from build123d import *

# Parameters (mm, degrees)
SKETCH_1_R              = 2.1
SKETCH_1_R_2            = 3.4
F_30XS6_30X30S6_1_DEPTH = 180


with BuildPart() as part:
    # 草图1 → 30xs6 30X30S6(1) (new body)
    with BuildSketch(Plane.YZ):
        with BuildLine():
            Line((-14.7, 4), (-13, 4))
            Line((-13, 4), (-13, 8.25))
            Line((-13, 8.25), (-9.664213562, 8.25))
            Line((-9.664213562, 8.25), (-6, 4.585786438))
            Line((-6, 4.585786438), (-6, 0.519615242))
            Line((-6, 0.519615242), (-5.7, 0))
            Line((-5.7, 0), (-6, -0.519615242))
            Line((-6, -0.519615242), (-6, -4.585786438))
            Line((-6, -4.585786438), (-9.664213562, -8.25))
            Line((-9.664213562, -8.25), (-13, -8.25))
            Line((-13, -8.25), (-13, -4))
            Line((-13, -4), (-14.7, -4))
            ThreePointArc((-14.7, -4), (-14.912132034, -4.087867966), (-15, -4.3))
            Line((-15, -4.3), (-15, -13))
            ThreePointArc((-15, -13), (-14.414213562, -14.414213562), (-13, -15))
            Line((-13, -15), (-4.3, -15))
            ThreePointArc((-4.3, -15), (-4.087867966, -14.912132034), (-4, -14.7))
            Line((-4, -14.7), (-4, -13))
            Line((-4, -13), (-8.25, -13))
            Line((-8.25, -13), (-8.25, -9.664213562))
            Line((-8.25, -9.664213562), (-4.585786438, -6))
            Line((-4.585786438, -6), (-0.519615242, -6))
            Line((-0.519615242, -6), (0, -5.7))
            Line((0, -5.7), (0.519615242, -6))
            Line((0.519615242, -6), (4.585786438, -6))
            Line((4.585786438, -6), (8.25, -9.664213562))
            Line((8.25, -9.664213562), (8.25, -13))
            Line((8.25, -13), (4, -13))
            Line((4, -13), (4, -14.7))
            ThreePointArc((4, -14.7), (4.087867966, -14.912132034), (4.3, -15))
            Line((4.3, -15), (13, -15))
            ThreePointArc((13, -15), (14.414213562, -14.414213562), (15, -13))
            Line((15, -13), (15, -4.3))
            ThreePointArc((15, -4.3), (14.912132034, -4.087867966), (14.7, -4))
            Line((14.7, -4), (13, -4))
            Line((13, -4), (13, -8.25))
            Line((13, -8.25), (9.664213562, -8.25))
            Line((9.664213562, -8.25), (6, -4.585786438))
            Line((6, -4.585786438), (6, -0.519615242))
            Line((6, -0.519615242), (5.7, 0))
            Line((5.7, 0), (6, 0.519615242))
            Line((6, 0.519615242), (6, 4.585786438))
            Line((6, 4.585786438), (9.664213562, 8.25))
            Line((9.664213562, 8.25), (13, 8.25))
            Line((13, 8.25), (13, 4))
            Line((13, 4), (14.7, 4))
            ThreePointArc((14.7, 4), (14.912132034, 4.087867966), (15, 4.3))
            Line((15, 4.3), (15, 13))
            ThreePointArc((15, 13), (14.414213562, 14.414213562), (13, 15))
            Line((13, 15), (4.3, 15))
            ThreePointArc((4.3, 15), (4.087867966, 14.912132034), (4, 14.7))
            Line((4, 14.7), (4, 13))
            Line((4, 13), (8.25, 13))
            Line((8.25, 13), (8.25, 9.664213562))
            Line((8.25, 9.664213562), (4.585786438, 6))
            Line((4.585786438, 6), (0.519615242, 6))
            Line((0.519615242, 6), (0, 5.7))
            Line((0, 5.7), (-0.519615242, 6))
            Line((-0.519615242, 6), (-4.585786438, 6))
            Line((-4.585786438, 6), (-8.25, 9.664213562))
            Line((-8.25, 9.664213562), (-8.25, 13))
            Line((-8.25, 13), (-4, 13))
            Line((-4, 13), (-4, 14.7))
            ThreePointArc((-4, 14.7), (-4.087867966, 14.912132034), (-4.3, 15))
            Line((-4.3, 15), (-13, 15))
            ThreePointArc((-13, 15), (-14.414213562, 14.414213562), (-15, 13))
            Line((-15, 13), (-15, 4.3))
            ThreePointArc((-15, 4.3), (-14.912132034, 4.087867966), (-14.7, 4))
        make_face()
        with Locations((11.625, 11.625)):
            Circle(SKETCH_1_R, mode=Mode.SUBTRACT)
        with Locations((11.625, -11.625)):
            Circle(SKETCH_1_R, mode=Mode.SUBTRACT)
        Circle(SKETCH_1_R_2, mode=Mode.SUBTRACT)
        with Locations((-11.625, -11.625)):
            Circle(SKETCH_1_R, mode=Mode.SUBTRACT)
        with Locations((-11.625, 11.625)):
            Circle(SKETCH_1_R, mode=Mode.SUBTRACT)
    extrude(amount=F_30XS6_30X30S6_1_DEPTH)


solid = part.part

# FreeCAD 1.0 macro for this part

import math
import FreeCAD as App
import Part
import Sketcher

V = App.Vector
Q = App.Units.Quantity

doc = App.newDocument("Part")
body = doc.addObject("PartDesign::Body", "Body")

# Sketch on YZ plane
sketch1 = body.newObject("Sketcher::SketchObject", "Sketch")
sketch1.AttachmentSupport = (doc.getObject("YZ_Plane"), [""])
sketch1.MapMode = "FlatFace"
sketch1.addGeometry(Part.LineSegment(V(-14.7, 4, 0), V(-13, 4, 0)), False)
sketch1.addGeometry(Part.LineSegment(V(-13, 4, 0), V(-13, 8.25, 0)), False)
sketch1.addGeometry(Part.LineSegment(V(-13, 8.25, 0), V(-9.664214, 8.25, 0)), False)
sketch1.addGeometry(Part.LineSegment(V(-9.664214, 8.25, 0), V(-6, 4.585786, 0)), False)
sketch1.addGeometry(Part.LineSegment(V(-6, 4.585786, 0), V(-6, 0.519615, 0)), False)
sketch1.addGeometry(Part.LineSegment(V(-6, 0.519615, 0), V(-5.7, 0, 0)), False)
sketch1.addGeometry(Part.LineSegment(V(-5.7, 0, 0), V(-6, -0.519615, 0)), False)
sketch1.addGeometry(Part.LineSegment(V(-6, -0.519615, 0), V(-6, -4.585786, 0)), False)
sketch1.addGeometry(Part.LineSegment(V(-6, -4.585786, 0), V(-9.664214, -8.25, 0)), False)
sketch1.addGeometry(Part.LineSegment(V(-9.664214, -8.25, 0), V(-13, -8.25, 0)), False)
sketch1.addGeometry(Part.LineSegment(V(-13, -8.25, 0), V(-13, -4, 0)), False)
sketch1.addGeometry(Part.LineSegment(V(-13, -4, 0), V(-14.7, -4, 0)), False)
sketch1.addGeometry(Part.ArcOfCircle(Part.Circle(V(-14.7, -4.3, 0), V(0, 0, 1), 0.3), math.radians(90), math.radians(180)), False)
sketch1.addGeometry(Part.LineSegment(V(-15, -4.3, 0), V(-15, -13, 0)), False)
sketch1.addGeometry(Part.ArcOfCircle(Part.Circle(V(-13, -13, 0), V(0, 0, 1), 2), math.radians(-180), math.radians(-90)), False)
sketch1.addGeometry(Part.LineSegment(V(-13, -15, 0), V(-4.3, -15, 0)), False)
sketch1.addGeometry(Part.ArcOfCircle(Part.Circle(V(-4.3, -14.7, 0), V(0, 0, 1), 0.3), math.radians(-90), math.radians(0)), False)
sketch1.addGeometry(Part.LineSegment(V(-4, -14.7, 0), V(-4, -13, 0)), False)
sketch1.addGeometry(Part.LineSegment(V(-4, -13, 0), V(-8.25, -13, 0)), False)
sketch1.addGeometry(Part.LineSegment(V(-8.25, -13, 0), V(-8.25, -9.664214, 0)), False)
sketch1.addGeometry(Part.LineSegment(V(-8.25, -9.664214, 0), V(-4.585786, -6, 0)), False)
sketch1.addGeometry(Part.LineSegment(V(-4.585786, -6, 0), V(-0.519615, -6, 0)), False)
sketch1.addGeometry(Part.LineSegment(V(-0.519615, -6, 0), V(0, -5.7, 0)), False)
sketch1.addGeometry(Part.LineSegment(V(0, -5.7, 0), V(0.519615, -6, 0)), False)
sketch1.addGeometry(Part.LineSegment(V(0.519615, -6, 0), V(4.585786, -6, 0)), False)
sketch1.addGeometry(Part.LineSegment(V(4.585786, -6, 0), V(8.25, -9.664214, 0)), False)
sketch1.addGeometry(Part.LineSegment(V(8.25, -9.664214, 0), V(8.25, -13, 0)), False)
sketch1.addGeometry(Part.LineSegment(V(8.25, -13, 0), V(4, -13, 0)), False)
sketch1.addGeometry(Part.LineSegment(V(4, -13, 0), V(4, -14.7, 0)), False)
sketch1.addGeometry(Part.ArcOfCircle(Part.Circle(V(4.3, -14.7, 0), V(0, 0, 1), 0.3), math.radians(-180), math.radians(-90)), False)
sketch1.addGeometry(Part.LineSegment(V(4.3, -15, 0), V(13, -15, 0)), False)
sketch1.addGeometry(Part.ArcOfCircle(Part.Circle(V(13, -13, 0), V(0, 0, 1), 2), math.radians(-90), math.radians(0)), False)
sketch1.addGeometry(Part.LineSegment(V(15, -13, 0), V(15, -4.3, 0)), False)
sketch1.addGeometry(Part.ArcOfCircle(Part.Circle(V(14.7, -4.3, 0), V(0, 0, 1), 0.3), math.radians(0), math.radians(90)), False)
sketch1.addGeometry(Part.LineSegment(V(14.7, -4, 0), V(13, -4, 0)), False)
sketch1.addGeometry(Part.LineSegment(V(13, -4, 0), V(13, -8.25, 0)), False)
sketch1.addGeometry(Part.LineSegment(V(13, -8.25, 0), V(9.664214, -8.25, 0)), False)
sketch1.addGeometry(Part.LineSegment(V(9.664214, -8.25, 0), V(6, -4.585786, 0)), False)
sketch1.addGeometry(Part.LineSegment(V(6, -4.585786, 0), V(6, -0.519615, 0)), False)
sketch1.addGeometry(Part.LineSegment(V(6, -0.519615, 0), V(5.7, 0, 0)), False)
sketch1.addGeometry(Part.LineSegment(V(5.7, 0, 0), V(6, 0.519615, 0)), False)
sketch1.addGeometry(Part.LineSegment(V(6, 0.519615, 0), V(6, 4.585786, 0)), False)
sketch1.addGeometry(Part.LineSegment(V(6, 4.585786, 0), V(9.664214, 8.25, 0)), False)
sketch1.addGeometry(Part.LineSegment(V(9.664214, 8.25, 0), V(13, 8.25, 0)), False)
sketch1.addGeometry(Part.LineSegment(V(13, 8.25, 0), V(13, 4, 0)), False)
sketch1.addGeometry(Part.LineSegment(V(13, 4, 0), V(14.7, 4, 0)), False)
sketch1.addGeometry(Part.ArcOfCircle(Part.Circle(V(14.7, 4.3, 0), V(0, 0, 1), 0.3), math.radians(-90), math.radians(0)), False)
sketch1.addGeometry(Part.LineSegment(V(15, 4.3, 0), V(15, 13, 0)), False)
sketch1.addGeometry(Part.ArcOfCircle(Part.Circle(V(13, 13, 0), V(0, 0, 1), 2), math.radians(0), math.radians(90)), False)
sketch1.addGeometry(Part.LineSegment(V(13, 15, 0), V(4.3, 15, 0)), False)
sketch1.addGeometry(Part.ArcOfCircle(Part.Circle(V(4.3, 14.7, 0), V(0, 0, 1), 0.3), math.radians(90), math.radians(180)), False)
sketch1.addGeometry(Part.LineSegment(V(4, 14.7, 0), V(4, 13, 0)), False)
sketch1.addGeometry(Part.LineSegment(V(4, 13, 0), V(8.25, 13, 0)), False)
sketch1.addGeometry(Part.LineSegment(V(8.25, 13, 0), V(8.25, 9.664214, 0)), False)
sketch1.addGeometry(Part.LineSegment(V(8.25, 9.664214, 0), V(4.585786, 6, 0)), False)
sketch1.addGeometry(Part.LineSegment(V(4.585786, 6, 0), V(0.519615, 6, 0)), False)
sketch1.addGeometry(Part.LineSegment(V(0.519615, 6, 0), V(0, 5.7, 0)), False)
sketch1.addGeometry(Part.LineSegment(V(0, 5.7, 0), V(-0.519615, 6, 0)), False)
sketch1.addGeometry(Part.LineSegment(V(-0.519615, 6, 0), V(-4.585786, 6, 0)), False)
sketch1.addGeometry(Part.LineSegment(V(-4.585786, 6, 0), V(-8.25, 9.664214, 0)), False)
sketch1.addGeometry(Part.LineSegment(V(-8.25, 9.664214, 0), V(-8.25, 13, 0)), False)
sketch1.addGeometry(Part.LineSegment(V(-8.25, 13, 0), V(-4, 13, 0)), False)
sketch1.addGeometry(Part.LineSegment(V(-4, 13, 0), V(-4, 14.7, 0)), False)
sketch1.addGeometry(Part.ArcOfCircle(Part.Circle(V(-4.3, 14.7, 0), V(0, 0, 1), 0.3), math.radians(0), math.radians(90)), False)
sketch1.addGeometry(Part.LineSegment(V(-4.3, 15, 0), V(-13, 15, 0)), False)
sketch1.addGeometry(Part.ArcOfCircle(Part.Circle(V(-13, 13, 0), V(0, 0, 1), 2), math.radians(90), math.radians(180)), False)
sketch1.addGeometry(Part.LineSegment(V(-15, 13, 0), V(-15, 4.3, 0)), False)
sketch1.addGeometry(Part.ArcOfCircle(Part.Circle(V(-14.7, 4.3, 0), V(0, 0, 1), 0.3), math.radians(-180), math.radians(-90)), False)
sketch1.addGeometry(Part.Circle(V(-11.625, -11.625, 0), V(0, 0, 1), 2.1), False)
sketch1.addGeometry(Part.Circle(V(11.625, -11.625, 0), V(0, 0, 1), 2.1), False)
sketch1.addGeometry(Part.Circle(V(-11.625, 11.625, 0), V(0, 0, 1), 2.1), False)
sketch1.addGeometry(Part.Circle(V(0, 0, 0), V(0, 0, 1), 3.4), False)
sketch1.addGeometry(Part.Circle(V(11.625, 11.625, 0), V(0, 0, 1), 2.1), False)
sketch1.addConstraint(Sketcher.Constraint("Coincident", 0, 2, 1, 1))
sketch1.addConstraint(Sketcher.Constraint("Coincident", 1, 2, 2, 1))
sketch1.addConstraint(Sketcher.Constraint("Coincident", 2, 2, 3, 1))
sketch1.addConstraint(Sketcher.Constraint("Coincident", 3, 2, 4, 1))
sketch1.addConstraint(Sketcher.Constraint("Coincident", 4, 2, 5, 1))
sketch1.addConstraint(Sketcher.Constraint("Coincident", 5, 2, 6, 1))
sketch1.addConstraint(Sketcher.Constraint("Coincident", 6, 2, 7, 1))
sketch1.addConstraint(Sketcher.Constraint("Coincident", 7, 2, 8, 1))
sketch1.addConstraint(Sketcher.Constraint("Coincident", 8, 2, 9, 1))
sketch1.addConstraint(Sketcher.Constraint("Coincident", 9, 2, 10, 1))
sketch1.addConstraint(Sketcher.Constraint("Coincident", 10, 2, 11, 1))
sketch1.addConstraint(Sketcher.Constraint("Tangent", 11, 2, 12, 1))
sketch1.addConstraint(Sketcher.Constraint("Tangent", 12, 2, 13, 1))
sketch1.addConstraint(Sketcher.Constraint("Tangent", 13, 2, 14, 1))
sketch1.addConstraint(Sketcher.Constraint("Tangent", 14, 2, 15, 1))
sketch1.addConstraint(Sketcher.Constraint("Tangent", 15, 2, 16, 1))
sketch1.addConstraint(Sketcher.Constraint("Tangent", 16, 2, 17, 1))
sketch1.addConstraint(Sketcher.Constraint("Coincident", 17, 2, 18, 1))
sketch1.addConstraint(Sketcher.Constraint("Coincident", 18, 2, 19, 1))
sketch1.addConstraint(Sketcher.Constraint("Coincident", 19, 2, 20, 1))
sketch1.addConstraint(Sketcher.Constraint("Coincident", 20, 2, 21, 1))
sketch1.addConstraint(Sketcher.Constraint("Coincident", 21, 2, 22, 1))
sketch1.addConstraint(Sketcher.Constraint("Coincident", 22, 2, 23, 1))
sketch1.addConstraint(Sketcher.Constraint("Coincident", 23, 2, 24, 1))
sketch1.addConstraint(Sketcher.Constraint("Coincident", 24, 2, 25, 1))
sketch1.addConstraint(Sketcher.Constraint("Coincident", 25, 2, 26, 1))
sketch1.addConstraint(Sketcher.Constraint("Coincident", 26, 2, 27, 1))
sketch1.addConstraint(Sketcher.Constraint("Coincident", 27, 2, 28, 1))
sketch1.addConstraint(Sketcher.Constraint("Tangent", 28, 2, 29, 1))
sketch1.addConstraint(Sketcher.Constraint("Tangent", 29, 2, 30, 1))
sketch1.addConstraint(Sketcher.Constraint("Tangent", 30, 2, 31, 1))
sketch1.addConstraint(Sketcher.Constraint("Tangent", 31, 2, 32, 1))
sketch1.addConstraint(Sketcher.Constraint("Tangent", 32, 2, 33, 1))
sketch1.addConstraint(Sketcher.Constraint("Tangent", 33, 2, 34, 1))
sketch1.addConstraint(Sketcher.Constraint("Coincident", 34, 2, 35, 1))
sketch1.addConstraint(Sketcher.Constraint("Coincident", 35, 2, 36, 1))
sketch1.addConstraint(Sketcher.Constraint("Coincident", 36, 2, 37, 1))
sketch1.addConstraint(Sketcher.Constraint("Coincident", 37, 2, 38, 1))
sketch1.addConstraint(Sketcher.Constraint("Coincident", 38, 2, 39, 1))
sketch1.addConstraint(Sketcher.Constraint("Coincident", 39, 2, 40, 1))
sketch1.addConstraint(Sketcher.Constraint("Coincident", 40, 2, 41, 1))
sketch1.addConstraint(Sketcher.Constraint("Coincident", 41, 2, 42, 1))
sketch1.addConstraint(Sketcher.Constraint("Coincident", 42, 2, 43, 1))
sketch1.addConstraint(Sketcher.Constraint("Coincident", 43, 2, 44, 1))
sketch1.addConstraint(Sketcher.Constraint("Coincident", 44, 2, 45, 1))
sketch1.addConstraint(Sketcher.Constraint("Tangent", 45, 2, 46, 1))
sketch1.addConstraint(Sketcher.Constraint("Tangent", 46, 2, 47, 1))
sketch1.addConstraint(Sketcher.Constraint("Tangent", 47, 2, 48, 1))
sketch1.addConstraint(Sketcher.Constraint("Tangent", 48, 2, 49, 1))
sketch1.addConstraint(Sketcher.Constraint("Tangent", 49, 2, 50, 1))
sketch1.addConstraint(Sketcher.Constraint("Tangent", 50, 2, 51, 1))
sketch1.addConstraint(Sketcher.Constraint("Coincident", 51, 2, 52, 1))
sketch1.addConstraint(Sketcher.Constraint("Coincident", 52, 2, 53, 1))
sketch1.addConstraint(Sketcher.Constraint("Coincident", 53, 2, 54, 1))
sketch1.addConstraint(Sketcher.Constraint("Coincident", 54, 2, 55, 1))
sketch1.addConstraint(Sketcher.Constraint("Coincident", 55, 2, 56, 1))
sketch1.addConstraint(Sketcher.Constraint("Coincident", 56, 2, 57, 1))
sketch1.addConstraint(Sketcher.Constraint("Coincident", 57, 2, 58, 1))
sketch1.addConstraint(Sketcher.Constraint("Coincident", 58, 2, 59, 1))
sketch1.addConstraint(Sketcher.Constraint("Coincident", 59, 2, 60, 1))
sketch1.addConstraint(Sketcher.Constraint("Coincident", 60, 2, 61, 1))
sketch1.addConstraint(Sketcher.Constraint("Coincident", 61, 2, 62, 1))
sketch1.addConstraint(Sketcher.Constraint("Tangent", 62, 2, 63, 1))
sketch1.addConstraint(Sketcher.Constraint("Tangent", 63, 2, 64, 1))
sketch1.addConstraint(Sketcher.Constraint("Tangent", 64, 2, 65, 1))
sketch1.addConstraint(Sketcher.Constraint("Tangent", 65, 2, 66, 1))
sketch1.addConstraint(Sketcher.Constraint("Tangent", 66, 2, 67, 1))
sketch1.addConstraint(Sketcher.Constraint("Tangent", 67, 2, 0, 1))
sketch1.addConstraint(Sketcher.Constraint("Horizontal", 0))
sketch1.addConstraint(Sketcher.Constraint("Vertical", 1))
sketch1.addConstraint(Sketcher.Constraint("Horizontal", 2))
sketch1.addConstraint(Sketcher.Constraint("Vertical", 4))
sketch1.addConstraint(Sketcher.Constraint("Vertical", 7))
sketch1.addConstraint(Sketcher.Constraint("Horizontal", 9))
sketch1.addConstraint(Sketcher.Constraint("Vertical", 10))
sketch1.addConstraint(Sketcher.Constraint("Horizontal", 11))
sketch1.addConstraint(Sketcher.Constraint("Vertical", 13))
sketch1.addConstraint(Sketcher.Constraint("Horizontal", 15))
sketch1.addConstraint(Sketcher.Constraint("Vertical", 17))
sketch1.addConstraint(Sketcher.Constraint("Horizontal", 18))
sketch1.addConstraint(Sketcher.Constraint("Vertical", 19))
sketch1.addConstraint(Sketcher.Constraint("Horizontal", 21))
sketch1.addConstraint(Sketcher.Constraint("Horizontal", 24))
sketch1.addConstraint(Sketcher.Constraint("Vertical", 26))
sketch1.addConstraint(Sketcher.Constraint("Horizontal", 27))
sketch1.addConstraint(Sketcher.Constraint("Vertical", 28))
sketch1.addConstraint(Sketcher.Constraint("Horizontal", 30))
sketch1.addConstraint(Sketcher.Constraint("Vertical", 32))
sketch1.addConstraint(Sketcher.Constraint("Horizontal", 34))
sketch1.addConstraint(Sketcher.Constraint("Vertical", 35))
sketch1.addConstraint(Sketcher.Constraint("Horizontal", 36))
sketch1.addConstraint(Sketcher.Constraint("Vertical", 38))
sketch1.addConstraint(Sketcher.Constraint("Vertical", 41))
sketch1.addConstraint(Sketcher.Constraint("Horizontal", 43))
sketch1.addConstraint(Sketcher.Constraint("Vertical", 44))
sketch1.addConstraint(Sketcher.Constraint("Horizontal", 45))
sketch1.addConstraint(Sketcher.Constraint("Vertical", 47))
sketch1.addConstraint(Sketcher.Constraint("Horizontal", 49))
sketch1.addConstraint(Sketcher.Constraint("Vertical", 51))
sketch1.addConstraint(Sketcher.Constraint("Horizontal", 52))
sketch1.addConstraint(Sketcher.Constraint("Vertical", 53))
sketch1.addConstraint(Sketcher.Constraint("Horizontal", 55))
sketch1.addConstraint(Sketcher.Constraint("Horizontal", 58))
sketch1.addConstraint(Sketcher.Constraint("Vertical", 60))
sketch1.addConstraint(Sketcher.Constraint("Horizontal", 61))
sketch1.addConstraint(Sketcher.Constraint("Vertical", 62))
sketch1.addConstraint(Sketcher.Constraint("Horizontal", 64))
sketch1.addConstraint(Sketcher.Constraint("Vertical", 66))
sketch1.addConstraint(Sketcher.Constraint("Coincident", 71, 3, -1, 1))
sketch1.addConstraint(Sketcher.Constraint("Equal", 12, 16))
sketch1.addConstraint(Sketcher.Constraint("Equal", 16, 29))
sketch1.addConstraint(Sketcher.Constraint("Equal", 14, 31))
sketch1.addConstraint(Sketcher.Constraint("Equal", 29, 33))
sketch1.addConstraint(Sketcher.Constraint("Equal", 33, 46))
sketch1.addConstraint(Sketcher.Constraint("Equal", 31, 48))
sketch1.addConstraint(Sketcher.Constraint("Equal", 46, 50))
sketch1.addConstraint(Sketcher.Constraint("Equal", 50, 63))
sketch1.addConstraint(Sketcher.Constraint("Equal", 48, 65))
sketch1.addConstraint(Sketcher.Constraint("Equal", 63, 67))
sketch1.addConstraint(Sketcher.Constraint("Equal", 68, 69))
sketch1.addConstraint(Sketcher.Constraint("Equal", 69, 70))
sketch1.addConstraint(Sketcher.Constraint("Equal", 70, 72))
sketch1.addConstraint(Sketcher.Constraint("Symmetric", 12, 3, 46, 3, -1, 1))
sketch1.addConstraint(Sketcher.Constraint("Symmetric", 16, 3, 50, 3, -1, 1))
sketch1.addConstraint(Sketcher.Constraint("Symmetric", 29, 3, 63, 3, -1, 1))
sketch1.addConstraint(Sketcher.Constraint("Symmetric", 33, 3, 67, 3, -1, 1))
sketch1.addConstraint(Sketcher.Constraint("Symmetric", 69, 3, 70, 3, -1, 1))
sketch1.addConstraint(Sketcher.Constraint("Symmetric", 68, 3, 72, 3, -1, 1))
sketch1.addConstraint(Sketcher.Constraint("Symmetric", 1, 2, 35, 2, -1, 1))
sketch1.addConstraint(Sketcher.Constraint("Symmetric", 3, 2, 37, 2, -1, 1))
sketch1.addConstraint(Sketcher.Constraint("Symmetric", 5, 2, 39, 2, -1, 1))
sketch1.addConstraint(Sketcher.Constraint("Symmetric", 6, 2, 40, 2, -1, 1))
sketch1.addConstraint(Sketcher.Constraint("Symmetric", 8, 2, 42, 2, -1, 1))
sketch1.addConstraint(Sketcher.Constraint("Symmetric", 18, 2, 52, 2, -1, 1))
sketch1.addConstraint(Sketcher.Constraint("Symmetric", 20, 2, 54, 2, -1, 1))
sketch1.addConstraint(Sketcher.Constraint("Symmetric", 22, 2, 56, 2, -1, 1))
sketch1.addConstraint(Sketcher.Constraint("Symmetric", 23, 2, 57, 2, -1, 1))
sketch1.addConstraint(Sketcher.Constraint("Symmetric", 25, 2, 59, 2, -1, 1))
sketch1.addConstraint(Sketcher.Constraint("Symmetric", 16, 3, 29, 3, -2))
sketch1.addConstraint(Sketcher.Constraint("Symmetric", 12, 3, 33, 3, -2))
sketch1.addConstraint(Sketcher.Constraint("Symmetric", 68, 3, 69, 3, -2))
sketch1.addConstraint(Sketcher.Constraint("Symmetric", 21, 2, 23, 2, -2))
sketch1.addConstraint(Sketcher.Constraint("Symmetric", 19, 2, 25, 2, -2))
sketch1.addConstraint(Sketcher.Constraint("Symmetric", 9, 2, 35, 2, -2))
sketch1.addConstraint(Sketcher.Constraint("Symmetric", 7, 2, 37, 2, -2))
sketch1.addConstraint(Sketcher.Constraint("PointOnObject", 5, 2, -1))
sketch1.addConstraint(Sketcher.Constraint("PointOnObject", 22, 2, -2))
sketch1.addConstraint(Sketcher.Constraint("Perpendicular", 3, 8))
sketch1.addConstraint(Sketcher.Constraint("Parallel", 8, 20))
sketch1.addConstraint(Sketcher.Constraint("Perpendicular", 5, 22))
sketch1.addConstraint(Sketcher.Constraint("Perpendicular", 6, 23))
sketch1.addConstraint(Sketcher.Constraint("Perpendicular", 20, 25))
sketch1.addConstraint(Sketcher.Constraint("Parallel", 25, 37))
sketch1.addConstraint(Sketcher.Constraint("Perpendicular", 22, 39))
sketch1.addConstraint(Sketcher.Constraint("Perpendicular", 37, 42))
sketch1.addConstraint(Sketcher.Constraint("Parallel", 42, 54))
sketch1.addConstraint(Sketcher.Constraint("Perpendicular", 39, 56))
sketch1.addConstraint(Sketcher.Constraint("Perpendicular", 54, 59))
sketch1.addConstraint(Sketcher.Constraint("Horizontal", 13, 2, 17, 2))
sketch1.addConstraint(Sketcher.Constraint("Horizontal", 18, 2, 26, 2))
sketch1.addConstraint(Sketcher.Constraint("Horizontal", 52, 2, 60, 2))
sketch1.addConstraint(Sketcher.Constraint("Vertical", 65, 3, 0, 2))
sketch1.addConstraint(Sketcher.Constraint("Vertical", 2, 2, 8, 2))
sketch1.addConstraint(Sketcher.Constraint("Vertical", 35, 2, 43, 2))
sketch1.addConstraint(Sketcher.Constraint("Equal", 61, 1))
sketch1.addConstraint(Sketcher.Constraint("Equal", 58, 4))
sketch1.addConstraint(Sketcher.Constraint("Equal", 64, 13))
sketch1.addConstraint(Sketcher.Constraint("Equal", 43, 19))
sketch1.addConstraint(Sketcher.Constraint("Equal", 8, 20))
sketch1.addConstraint(Sketcher.Constraint("Equal", 6, 22))
sketch1.addConstraint(Sketcher.Constraint("Radius", 14, Q("2 mm")))
sketch1.addConstraint(Sketcher.Constraint("Diameter", 68, Q("4.2 mm")))
sketch1.addConstraint(Sketcher.Constraint("Diameter", 71, Q("6.8 mm")))
sketch1.addConstraint(Sketcher.Constraint("Radius", 12, Q("0.3 mm")))
sketch1.addConstraint(Sketcher.Constraint("Angle", 5, Q("-60 deg")))
sketch1.addConstraint(Sketcher.Constraint("DistanceX", 15, 1, 15, 2, Q("8.7 mm")))
sketch1.addConstraint(Sketcher.Constraint("DistanceX", 14, 3, -1, 1, Q("13 mm")))
sketch1.addConstraint(Sketcher.Constraint("DistanceX", 3, 2, -1, 1, Q("6 mm")))
sketch1.addConstraint(Sketcher.Constraint("Distance", 5, Q("0.6 mm")))
sketch1.addConstraint(Sketcher.Constraint("DistanceX", 18, 2, 18, 1, Q("4.25 mm")))
sketch1.addConstraint(Sketcher.Constraint("DistanceX", 68, 3, -1, 1, Q("11.625 mm")))
sketch1.addConstraint(Sketcher.Constraint("DistanceY", 68, 3, -1, 1, Q("11.625 mm")))
sketch1.addConstraint(Sketcher.Constraint("DistanceX", 21, 1, 21, 2, Q("4.066171 mm")))
pad1 = body.newObject("PartDesign::Pad", "Pad")
pad1.Profile = sketch1
pad1.Length = 180

doc.recompute()
